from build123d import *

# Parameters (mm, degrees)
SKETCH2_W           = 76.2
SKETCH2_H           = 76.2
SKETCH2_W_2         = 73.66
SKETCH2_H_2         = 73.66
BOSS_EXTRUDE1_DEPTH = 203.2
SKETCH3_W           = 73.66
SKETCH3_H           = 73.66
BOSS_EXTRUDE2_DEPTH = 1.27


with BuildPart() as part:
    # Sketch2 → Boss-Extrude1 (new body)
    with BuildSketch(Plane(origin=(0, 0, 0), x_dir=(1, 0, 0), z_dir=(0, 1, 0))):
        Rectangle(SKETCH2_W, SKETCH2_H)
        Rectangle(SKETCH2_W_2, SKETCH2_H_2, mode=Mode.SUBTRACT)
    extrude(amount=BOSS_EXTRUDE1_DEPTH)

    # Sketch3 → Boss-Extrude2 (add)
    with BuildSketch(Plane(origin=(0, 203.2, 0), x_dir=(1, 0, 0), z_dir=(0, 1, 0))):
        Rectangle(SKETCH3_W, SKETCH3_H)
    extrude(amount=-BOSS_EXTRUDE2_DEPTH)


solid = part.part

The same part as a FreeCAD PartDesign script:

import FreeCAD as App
import Part
import Sketcher
Q = App.Units.Quantity


def add_polygon(sketch, points):
    """Adds a closed chain of lines whose ends are joined by coincident constraints."""
    first, n = sketch.GeometryCount, len(points)
    for a, b in zip(points, points[1:] + points[:1]):
        sketch.addGeometry(Part.LineSegment(App.Vector(*a, 0), App.Vector(*b, 0)), False)
    for i in range(n):
        sketch.addConstraint(Sketcher.Constraint("Coincident", first + i, 2, first + (i + 1) % n, 1))

doc = App.newDocument("Part")
params = doc.addObject("Spreadsheet::Sheet", "Params")
for row, (alias, value) in enumerate([
    ("sketch1_width", "3 in"),
    ("sketch1_width2", "2.9 in"),
    ("pad1_length", "8 in"),
    ("sketch2_width", "2.9 in"),
    ("pad2_length", "0.05 in"),
], start=1):
    params.set(f"A{row}", alias)
    params.set(f"B{row}", "=" + value)
    params.setAlias(f"B{row}", alias)

body = doc.addObject("PartDesign::Body", "Body")

# Sketch on XZ plane
sketch1 = doc.addObject("Sketcher::SketchObject", "Sketch")
body.addObject(sketch1)
sketch1.AttachmentSupport = (doc.XZ_Plane, [""])
sketch1.MapMode = "FlatFace"
add_polygon(sketch1, [(-38.1, -38.1), (-38.1, 38.1), (38.1, 38.1), (38.1, -38.1)])  # lines 0-3
add_polygon(sketch1, [(36.83, 36.83), (-36.83, 36.83), (-36.83, -36.83), (36.83, -36.83)])  # lines 4-7
sketch1.addConstraint(Sketcher.Constraint("Vertical", 0))
sketch1.addConstraint(Sketcher.Constraint("Horizontal", 1))
sketch1.addConstraint(Sketcher.Constraint("Vertical", 2))
sketch1.addConstraint(Sketcher.Constraint("Horizontal", 3))
sketch1.addConstraint(Sketcher.Constraint("Horizontal", 4))
sketch1.addConstraint(Sketcher.Constraint("Vertical", 5))
sketch1.addConstraint(Sketcher.Constraint("Horizontal", 6))
sketch1.addConstraint(Sketcher.Constraint("Vertical", 7))
sketch1.addConstraint(Sketcher.Constraint("Symmetric", 0, 2, 2, 2, -1, 1))
sketch1.addConstraint(Sketcher.Constraint("Symmetric", 4, 2, 6, 2, -1, 1))
sketch1.addConstraint(Sketcher.Constraint("Equal", 3, 0))
sketch1.addConstraint(Sketcher.Constraint("Equal", 6, 5))
sketch1.addConstraint(Sketcher.Constraint("DistanceX", 1, 1, 1, 2, Q("3 in")))
sketch1.addConstraint(Sketcher.Constraint("DistanceX", 4, 2, 4, 1, Q("2.9 in")))
sketch1.setExpression("Constraints[20]", "Params.sketch1_width")
sketch1.setExpression("Constraints[21]", "Params.sketch1_width2")
pad1 = doc.addObject("PartDesign::Pad", "Pad")
body.addObject(pad1)
pad1.Profile = sketch1
pad1.setExpression("Length", "Params.pad1_length")
pad1.Reversed = True

# Sketch on XZ plane
sketch2 = doc.addObject("Sketcher::SketchObject", "Sketch001")
body.addObject(sketch2)
sketch2.AttachmentSupport = (doc.XZ_Plane, [""])
sketch2.MapMode = "FlatFace"
sketch2.AttachmentOffset = App.Placement(App.Vector(0, 0, -8 * 25.4), App.Rotation())
add_polygon(sketch2, [(-36.83, -36.83), (-36.83, 36.83), (36.83, 36.83), (36.83, -36.83)])  # lines 0-3
sketch2.addConstraint(Sketcher.Constraint("Vertical", 0))
sketch2.addConstraint(Sketcher.Constraint("Horizontal", 1))
sketch2.addConstraint(Sketcher.Constraint("Vertical", 2))
sketch2.addConstraint(Sketcher.Constraint("Horizontal", 3))
sketch2.addConstraint(Sketcher.Constraint("Symmetric", 0, 2, 2, 2, -1, 1))
sketch2.addConstraint(Sketcher.Constraint("Equal", 3, 0))
sketch2.addConstraint(Sketcher.Constraint("DistanceX", 1, 1, 1, 2, Q("2.9 in")))
sketch2.setExpression("Constraints[10]", "Params.sketch2_width")
pad2 = doc.addObject("PartDesign::Pad", "Pad001")
body.addObject(pad2)
pad2.Profile = sketch2
pad2.setExpression("Length", "Params.pad2_length")

doc.recompute()
